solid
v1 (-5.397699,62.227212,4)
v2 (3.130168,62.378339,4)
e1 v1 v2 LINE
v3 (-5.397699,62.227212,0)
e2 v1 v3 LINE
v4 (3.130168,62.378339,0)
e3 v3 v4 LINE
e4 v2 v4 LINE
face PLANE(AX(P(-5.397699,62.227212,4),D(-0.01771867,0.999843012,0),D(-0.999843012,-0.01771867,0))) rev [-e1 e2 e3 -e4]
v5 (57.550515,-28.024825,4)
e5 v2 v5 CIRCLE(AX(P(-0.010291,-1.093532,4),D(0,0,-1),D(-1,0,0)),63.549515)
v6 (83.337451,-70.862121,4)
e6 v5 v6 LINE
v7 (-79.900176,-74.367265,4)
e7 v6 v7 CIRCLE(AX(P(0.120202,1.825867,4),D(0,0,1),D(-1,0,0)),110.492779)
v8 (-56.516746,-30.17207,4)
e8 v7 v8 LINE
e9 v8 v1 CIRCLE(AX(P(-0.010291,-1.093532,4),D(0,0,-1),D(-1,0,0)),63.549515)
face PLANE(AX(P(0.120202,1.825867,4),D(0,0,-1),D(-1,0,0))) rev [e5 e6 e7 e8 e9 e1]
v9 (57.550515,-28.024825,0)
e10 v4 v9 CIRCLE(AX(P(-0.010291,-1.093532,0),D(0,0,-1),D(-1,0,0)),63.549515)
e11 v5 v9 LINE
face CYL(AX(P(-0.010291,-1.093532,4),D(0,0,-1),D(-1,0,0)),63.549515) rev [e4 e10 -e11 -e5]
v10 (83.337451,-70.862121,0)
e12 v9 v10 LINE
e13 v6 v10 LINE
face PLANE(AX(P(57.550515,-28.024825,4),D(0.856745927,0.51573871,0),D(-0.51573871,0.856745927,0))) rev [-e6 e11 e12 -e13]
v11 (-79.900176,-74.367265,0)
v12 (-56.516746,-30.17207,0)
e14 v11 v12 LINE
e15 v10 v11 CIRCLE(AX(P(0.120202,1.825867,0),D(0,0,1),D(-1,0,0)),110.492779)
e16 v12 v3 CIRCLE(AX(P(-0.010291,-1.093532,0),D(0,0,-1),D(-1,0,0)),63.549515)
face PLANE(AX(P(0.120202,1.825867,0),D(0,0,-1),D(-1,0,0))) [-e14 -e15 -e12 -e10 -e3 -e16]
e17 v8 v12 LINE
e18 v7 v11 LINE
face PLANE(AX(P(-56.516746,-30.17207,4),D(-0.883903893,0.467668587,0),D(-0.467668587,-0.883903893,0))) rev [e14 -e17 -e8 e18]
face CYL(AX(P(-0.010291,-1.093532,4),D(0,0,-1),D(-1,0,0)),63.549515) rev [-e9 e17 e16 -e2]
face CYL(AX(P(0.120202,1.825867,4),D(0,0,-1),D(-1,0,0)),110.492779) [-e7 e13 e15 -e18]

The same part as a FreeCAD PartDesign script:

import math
import FreeCAD as App
import Part
import Sketcher
from FreeCAD import Vector

doc = App.newDocument("Part")
body = doc.addObject("PartDesign::Body", "Body")

# Sketch on XY plane
sketch1 = body.newObject("Sketcher::SketchObject", "Sketch")
sketch1.AttachmentSupport = (doc.getObject("XY_Plane"), [""])
sketch1.MapMode = "FlatFace"
sketch1.addGeometry(Part.LineSegment(Vector(-5, 62, 0), Vector(3, 62, 0)), False)
sketch1.addGeometry(Part.ArcOfCircle(Part.Circle(Vector(0, -1, 0), Vector(0, 0, 1), 64), math.radians(-25), math.radians(87)), False)
sketch1.addGeometry(Part.LineSegment(Vector(58, -28, 0), Vector(83, -71, 0)), False)
sketch1.addGeometry(Part.ArcOfCircle(Part.Circle(Vector(0, 2, 0), Vector(0, 0, 1), 110), math.radians(-41), math.radians(224)), False)
sketch1.addGeometry(Part.LineSegment(Vector(-80, -74, 0), Vector(-57, -30, 0)), False)
sketch1.addGeometry(Part.ArcOfCircle(Part.Circle(Vector(0, -1, 0), Vector(0, 0, 1), 64), math.radians(95), math.radians(207)), False)
sketch1.addConstraint(Sketcher.Constraint("Coincident", 0, 2, 1, 2))
sketch1.addConstraint(Sketcher.Constraint("Coincident", 1, 1, 2, 1))
sketch1.addConstraint(Sketcher.Constraint("Coincident", 2, 2, 3, 1))
sketch1.addConstraint(Sketcher.Constraint("Coincident", 3, 2, 4, 1))
sketch1.addConstraint(Sketcher.Constraint("Coincident", 4, 2, 5, 2))
sketch1.addConstraint(Sketcher.Constraint("Coincident", 5, 1, 0, 1))
sketch1.addConstraint(Sketcher.Constraint("Coincident", 5, 3, 1, 3))
sketch1.addConstraint(Sketcher.Constraint("Equal", 1, 5))
sketch1.addConstraint(Sketcher.Constraint("Equal", 2, 4))
sketch1.addConstraint(Sketcher.Constraint("Distance", 2, 50.0))
sketch1.addConstraint(Sketcher.Constraint("Radius", 3, 110.492779))
sketch1.addConstraint(Sketcher.Constraint("Radius", 1, 63.549515))
sketch1.addConstraint(Sketcher.Constraint("DistanceX", -1, 1, 3, 3, 0.120202))
sketch1.addConstraint(Sketcher.Constraint("DistanceX", 5, 1, -1, 1, 5.397699))
sketch1.addConstraint(Sketcher.Constraint("DistanceY", 1, 3, 3, 3, 2.919399))
sketch1.addConstraint(Sketcher.Constraint("DistanceX", 1, 3, -1, 1, 0.010291))
sketch1.addConstraint(Sketcher.Constraint("DistanceY", -1, 1, 0, 2, 62.378339))
sketch1.addConstraint(Sketcher.Constraint("DistanceX", -1, 1, 2, 2, 83.337451))
sketch1.addConstraint(Sketcher.Constraint("DistanceY", 2, 2, -1, 1, 70.862121))
sketch1.addConstraint(Sketcher.Constraint("DistanceY", 4, 2, -1, 1, 30.17207))
pad1 = body.newObject("PartDesign::Pad", "Pad")
pad1.Profile = sketch1
pad1.Length = 4

doc.recompute()
